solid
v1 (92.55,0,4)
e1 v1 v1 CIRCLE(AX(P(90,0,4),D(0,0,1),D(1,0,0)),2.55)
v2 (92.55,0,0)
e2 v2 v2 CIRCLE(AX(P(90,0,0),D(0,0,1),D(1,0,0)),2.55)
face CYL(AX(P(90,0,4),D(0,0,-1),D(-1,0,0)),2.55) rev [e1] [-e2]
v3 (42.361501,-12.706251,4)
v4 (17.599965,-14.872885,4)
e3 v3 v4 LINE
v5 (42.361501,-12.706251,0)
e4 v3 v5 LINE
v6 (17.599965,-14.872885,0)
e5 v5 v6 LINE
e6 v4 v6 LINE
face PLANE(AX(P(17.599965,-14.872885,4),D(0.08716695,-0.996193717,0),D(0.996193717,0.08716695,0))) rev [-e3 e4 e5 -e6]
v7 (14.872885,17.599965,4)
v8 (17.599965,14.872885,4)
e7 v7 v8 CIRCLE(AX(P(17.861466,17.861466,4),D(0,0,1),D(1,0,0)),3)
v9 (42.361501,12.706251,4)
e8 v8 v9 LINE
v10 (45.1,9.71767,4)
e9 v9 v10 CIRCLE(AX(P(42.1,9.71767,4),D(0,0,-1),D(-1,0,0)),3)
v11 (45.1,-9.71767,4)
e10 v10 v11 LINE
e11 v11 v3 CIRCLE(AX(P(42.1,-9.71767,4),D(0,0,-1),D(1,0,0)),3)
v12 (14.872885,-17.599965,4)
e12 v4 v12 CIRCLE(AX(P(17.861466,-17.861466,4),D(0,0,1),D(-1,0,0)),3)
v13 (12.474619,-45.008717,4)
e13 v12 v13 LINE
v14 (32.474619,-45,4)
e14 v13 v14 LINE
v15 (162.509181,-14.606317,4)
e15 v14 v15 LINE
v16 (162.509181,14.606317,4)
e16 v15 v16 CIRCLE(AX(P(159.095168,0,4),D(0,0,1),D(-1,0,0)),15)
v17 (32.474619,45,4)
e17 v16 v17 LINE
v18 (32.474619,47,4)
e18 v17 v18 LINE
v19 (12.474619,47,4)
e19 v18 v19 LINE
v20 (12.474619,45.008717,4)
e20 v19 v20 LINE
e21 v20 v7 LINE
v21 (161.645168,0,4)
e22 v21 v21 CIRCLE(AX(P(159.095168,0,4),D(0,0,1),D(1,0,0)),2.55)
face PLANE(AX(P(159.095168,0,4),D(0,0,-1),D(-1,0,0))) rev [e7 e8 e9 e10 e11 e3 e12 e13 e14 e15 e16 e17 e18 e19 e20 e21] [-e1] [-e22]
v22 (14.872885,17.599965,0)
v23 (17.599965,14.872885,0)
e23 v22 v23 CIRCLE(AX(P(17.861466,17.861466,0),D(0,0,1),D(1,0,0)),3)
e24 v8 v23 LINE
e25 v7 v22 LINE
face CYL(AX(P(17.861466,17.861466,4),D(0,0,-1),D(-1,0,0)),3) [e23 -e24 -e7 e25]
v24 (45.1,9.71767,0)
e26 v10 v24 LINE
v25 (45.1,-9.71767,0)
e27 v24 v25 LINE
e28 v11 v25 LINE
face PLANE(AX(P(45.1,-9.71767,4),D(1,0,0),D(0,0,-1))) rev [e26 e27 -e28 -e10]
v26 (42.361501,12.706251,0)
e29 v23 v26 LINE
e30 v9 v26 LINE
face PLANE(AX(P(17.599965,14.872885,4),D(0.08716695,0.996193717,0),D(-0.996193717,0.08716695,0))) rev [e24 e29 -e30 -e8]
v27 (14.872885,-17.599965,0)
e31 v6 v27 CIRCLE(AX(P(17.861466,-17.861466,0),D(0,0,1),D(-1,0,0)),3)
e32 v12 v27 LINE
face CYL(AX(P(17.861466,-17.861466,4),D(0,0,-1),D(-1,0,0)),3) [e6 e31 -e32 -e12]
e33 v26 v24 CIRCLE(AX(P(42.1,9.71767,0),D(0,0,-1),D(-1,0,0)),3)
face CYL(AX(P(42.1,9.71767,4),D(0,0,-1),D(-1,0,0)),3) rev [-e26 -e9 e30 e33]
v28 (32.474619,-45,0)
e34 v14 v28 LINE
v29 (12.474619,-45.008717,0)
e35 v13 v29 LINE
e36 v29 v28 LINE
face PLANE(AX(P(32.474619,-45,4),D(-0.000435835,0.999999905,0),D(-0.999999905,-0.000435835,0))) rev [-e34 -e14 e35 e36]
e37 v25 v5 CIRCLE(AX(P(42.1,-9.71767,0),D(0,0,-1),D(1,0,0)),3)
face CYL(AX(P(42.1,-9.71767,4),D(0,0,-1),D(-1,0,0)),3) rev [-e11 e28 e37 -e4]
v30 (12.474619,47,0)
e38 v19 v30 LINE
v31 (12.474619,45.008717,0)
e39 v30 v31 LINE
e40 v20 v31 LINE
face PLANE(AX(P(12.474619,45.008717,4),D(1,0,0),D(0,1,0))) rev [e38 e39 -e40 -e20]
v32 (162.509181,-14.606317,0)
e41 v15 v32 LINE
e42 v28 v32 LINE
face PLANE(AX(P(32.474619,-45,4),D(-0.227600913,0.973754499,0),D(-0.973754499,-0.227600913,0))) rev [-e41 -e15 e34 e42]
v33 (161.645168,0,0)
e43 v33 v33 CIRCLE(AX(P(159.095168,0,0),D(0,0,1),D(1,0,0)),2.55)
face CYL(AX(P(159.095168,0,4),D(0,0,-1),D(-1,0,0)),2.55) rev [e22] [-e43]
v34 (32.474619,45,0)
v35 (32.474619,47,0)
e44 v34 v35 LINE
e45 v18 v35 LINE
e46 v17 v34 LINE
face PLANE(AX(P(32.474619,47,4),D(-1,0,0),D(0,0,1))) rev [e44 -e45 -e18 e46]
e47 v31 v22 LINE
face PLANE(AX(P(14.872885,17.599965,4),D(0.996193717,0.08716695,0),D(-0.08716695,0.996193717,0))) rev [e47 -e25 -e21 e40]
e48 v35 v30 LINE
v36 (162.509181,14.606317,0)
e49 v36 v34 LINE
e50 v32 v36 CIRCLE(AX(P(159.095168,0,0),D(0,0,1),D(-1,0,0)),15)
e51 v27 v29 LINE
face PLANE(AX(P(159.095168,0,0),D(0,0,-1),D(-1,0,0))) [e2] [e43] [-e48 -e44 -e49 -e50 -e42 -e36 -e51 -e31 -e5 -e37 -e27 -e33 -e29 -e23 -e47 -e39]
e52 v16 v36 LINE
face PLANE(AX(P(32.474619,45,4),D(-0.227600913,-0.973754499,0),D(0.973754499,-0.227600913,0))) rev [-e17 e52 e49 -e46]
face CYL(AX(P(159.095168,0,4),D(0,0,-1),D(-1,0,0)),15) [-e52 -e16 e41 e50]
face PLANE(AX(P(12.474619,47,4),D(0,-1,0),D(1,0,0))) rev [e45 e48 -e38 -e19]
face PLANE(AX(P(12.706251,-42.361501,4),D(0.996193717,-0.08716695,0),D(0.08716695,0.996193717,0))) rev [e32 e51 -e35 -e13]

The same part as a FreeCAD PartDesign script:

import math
import FreeCAD as App
import Part
import Sketcher
from FreeCAD import Vector

doc = App.newDocument("Part")
body = doc.addObject("PartDesign::Body", "Body")

# Sketch on XY plane
sketch1 = body.newObject("Sketcher::SketchObject", "Sketch")
sketch1.AttachmentSupport = (doc.getObject("XY_Plane"), [""])
sketch1.MapMode = "FlatFace"
sketch1.addGeometry(Part.LineSegment(Vector(12.7, 42.4, 0), Vector(14.9, 17.6, 0)), False)
sketch1.addGeometry(Part.ArcOfCircle(Part.Circle(Vector(17.9, 17.9, 0), Vector(0, 0, 1), 3), math.radians(-175), math.radians(-95)), False)
sketch1.addGeometry(Part.LineSegment(Vector(17.6, 14.9, 0), Vector(42.4, 12.7, 0)), False)
sketch1.addGeometry(Part.ArcOfCircle(Part.Circle(Vector(42.1, 9.7, 0), Vector(0, 0, 1), 3), math.radians(0), math.radians(85)), False)
sketch1.addGeometry(Part.LineSegment(Vector(45.1, 9.7, 0), Vector(45.1, -9.7, 0)), False)
sketch1.addGeometry(Part.ArcOfCircle(Part.Circle(Vector(42.1, -9.7, 0), Vector(0, 0, 1), 3), math.radians(-85), math.radians(0)), False)
sketch1.addGeometry(Part.LineSegment(Vector(42.4, -12.7, 0), Vector(17.6, -14.9, 0)), False)
sketch1.addGeometry(Part.ArcOfCircle(Part.Circle(Vector(17.9, -17.9, 0), Vector(0, 0, 1), 3), math.radians(95), math.radians(175)), False)
sketch1.addGeometry(Part.LineSegment(Vector(14.9, -17.6, 0), Vector(12.7, -42.4, 0)), False)
sketch1.addGeometry(Part.LineSegment(Vector(12.7, -42.4, 0), Vector(12.5, -45, 0)), False)
sketch1.addGeometry(Part.LineSegment(Vector(12.5, -45, 0), Vector(32.5, -45, 0)), False)
sketch1.addGeometry(Part.LineSegment(Vector(32.5, -45, 0), Vector(162.5, -14.6, 0)), False)
sketch1.addGeometry(Part.ArcOfCircle(Part.Circle(Vector(159.1, 0, 0), Vector(0, 0, 1), 15), math.radians(-77), math.radians(77)), False)
sketch1.addGeometry(Part.LineSegment(Vector(162.5, 14.6, 0), Vector(32.5, 45, 0)), False)
sketch1.addGeometry(Part.LineSegment(Vector(32.5, 45, 0), Vector(32.5, 47, 0)), False)
sketch1.addGeometry(Part.LineSegment(Vector(32.5, 47, 0), Vector(12.5, 47, 0)), False)
sketch1.addGeometry(Part.LineSegment(Vector(12.5, 47, 0), Vector(12.5, 45, 0)), False)
sketch1.addGeometry(Part.LineSegment(Vector(12.5, 45, 0), Vector(12.7, 42.4, 0)), False)
sketch1.addGeometry(Part.Circle(Vector(159.1, 0, 0), Vector(0, 0, 1), 2.5), False)
sketch1.addGeometry(Part.Circle(Vector(90, 0, 0), Vector(0, 0, 1), 2.5), False)
sketch1.addConstraint(Sketcher.Constraint("Tangent", 0, 2, 1, 1))
sketch1.addConstraint(Sketcher.Constraint("Tangent", 1, 2, 2, 1))
sketch1.addConstraint(Sketcher.Constraint("Tangent", 2, 2, 3, 2))
sketch1.addConstraint(Sketcher.Constraint("Tangent", 3, 1, 4, 1))
sketch1.addConstraint(Sketcher.Constraint("Tangent", 4, 2, 5, 2))
sketch1.addConstraint(Sketcher.Constraint("Tangent", 5, 1, 6, 1))
sketch1.addConstraint(Sketcher.Constraint("Tangent", 6, 2, 7, 1))
sketch1.addConstraint(Sketcher.Constraint("Tangent", 7, 2, 8, 1))
sketch1.addConstraint(Sketcher.Constraint("Coincident", 8, 2, 9, 1))
sketch1.addConstraint(Sketcher.Constraint("Coincident", 9, 2, 10, 1))
sketch1.addConstraint(Sketcher.Constraint("Coincident", 10, 2, 11, 1))
sketch1.addConstraint(Sketcher.Constraint("Tangent", 11, 2, 12, 1))
sketch1.addConstraint(Sketcher.Constraint("Tangent", 12, 2, 13, 1))
sketch1.addConstraint(Sketcher.Constraint("Coincident", 13, 2, 14, 1))
sketch1.addConstraint(Sketcher.Constraint("Coincident", 14, 2, 15, 1))
sketch1.addConstraint(Sketcher.Constraint("Coincident", 15, 2, 16, 1))
sketch1.addConstraint(Sketcher.Constraint("Coincident", 16, 2, 17, 1))
sketch1.addConstraint(Sketcher.Constraint("Coincident", 17, 2, 0, 1))
sketch1.addConstraint(Sketcher.Constraint("Vertical", 4))
sketch1.addConstraint(Sketcher.Constraint("Vertical", 14))
sketch1.addConstraint(Sketcher.Constraint("Horizontal", 15))
sketch1.addConstraint(Sketcher.Constraint("Vertical", 16))
sketch1.addConstraint(Sketcher.Constraint("Coincident", 18, 3, 12, 3))
sketch1.addConstraint(Sketcher.Constraint("Equal", 1, 3))
sketch1.addConstraint(Sketcher.Constraint("Equal", 3, 5))
sketch1.addConstraint(Sketcher.Constraint("Equal", 5, 7))
sketch1.addConstraint(Sketcher.Constraint("Equal", 18, 19))
sketch1.addConstraint(Sketcher.Constraint("Symmetric", 1, 3, 7, 3, -1))
sketch1.addConstraint(Sketcher.Constraint("Symmetric", 11, 2, 12, 2, -1))
sketch1.addConstraint(Sketcher.Constraint("Symmetric", 9, 2, 16, 2, -1))
sketch1.addConstraint(Sketcher.Constraint("Symmetric", 8, 2, 17, 2, -1))
sketch1.addConstraint(Sketcher.Constraint("PointOnObject", 19, 3, -1))
sketch1.addConstraint(Sketcher.Constraint("Perpendicular", 0, 6))
sketch1.addConstraint(Sketcher.Constraint("Perpendicular", 2, 8))
sketch1.addConstraint(Sketcher.Constraint("Parallel", 8, 9))
sketch1.addConstraint(Sketcher.Constraint("Vertical", 10, 2, 13, 2))
sketch1.addConstraint(Sketcher.Constraint("Equal", 0, 2))
sketch1.addConstraint(Sketcher.Constraint("Radius", 1, 3.0))
sketch1.addConstraint(Sketcher.Constraint("Radius", 12, 15.0))
sketch1.addConstraint(Sketcher.Constraint("Diameter", 18, 5.1))
sketch1.addConstraint(Sketcher.Constraint("DistanceX", 15, 2, 15, 1, 20.0))
sketch1.addConstraint(Sketcher.Constraint("DistanceY", 14, 1, 14, 2, 2.0))
sketch1.addConstraint(Sketcher.Constraint("DistanceX", -1, 1, 19, 3, 90.0))
sketch1.addConstraint(Sketcher.Constraint("DistanceY", 10, 2, -1, 1, 45.0))
sketch1.addConstraint(Sketcher.Constraint("DistanceX", -1, 1, 3, 3, 42.1))
sketch1.addConstraint(Sketcher.Constraint("DistanceY", 4, 2, 4, 1, 19.435339))
sketch1.addConstraint(Sketcher.Constraint("DistanceX", -1, 1, 2, 2, 42.361501))
sketch1.addConstraint(Sketcher.Constraint("DistanceY", 8, 2, -1, 1, 42.361501))
sketch1.addConstraint(Sketcher.Constraint("DistanceX", 1, 3, 12, 3, 141.233702))
sketch1.addConstraint(Sketcher.Constraint("Distance", 9, 2.65733))
pad1 = body.newObject("PartDesign::Pad", "Pad")
pad1.Profile = sketch1
pad1.Length = 4

doc.recompute()
